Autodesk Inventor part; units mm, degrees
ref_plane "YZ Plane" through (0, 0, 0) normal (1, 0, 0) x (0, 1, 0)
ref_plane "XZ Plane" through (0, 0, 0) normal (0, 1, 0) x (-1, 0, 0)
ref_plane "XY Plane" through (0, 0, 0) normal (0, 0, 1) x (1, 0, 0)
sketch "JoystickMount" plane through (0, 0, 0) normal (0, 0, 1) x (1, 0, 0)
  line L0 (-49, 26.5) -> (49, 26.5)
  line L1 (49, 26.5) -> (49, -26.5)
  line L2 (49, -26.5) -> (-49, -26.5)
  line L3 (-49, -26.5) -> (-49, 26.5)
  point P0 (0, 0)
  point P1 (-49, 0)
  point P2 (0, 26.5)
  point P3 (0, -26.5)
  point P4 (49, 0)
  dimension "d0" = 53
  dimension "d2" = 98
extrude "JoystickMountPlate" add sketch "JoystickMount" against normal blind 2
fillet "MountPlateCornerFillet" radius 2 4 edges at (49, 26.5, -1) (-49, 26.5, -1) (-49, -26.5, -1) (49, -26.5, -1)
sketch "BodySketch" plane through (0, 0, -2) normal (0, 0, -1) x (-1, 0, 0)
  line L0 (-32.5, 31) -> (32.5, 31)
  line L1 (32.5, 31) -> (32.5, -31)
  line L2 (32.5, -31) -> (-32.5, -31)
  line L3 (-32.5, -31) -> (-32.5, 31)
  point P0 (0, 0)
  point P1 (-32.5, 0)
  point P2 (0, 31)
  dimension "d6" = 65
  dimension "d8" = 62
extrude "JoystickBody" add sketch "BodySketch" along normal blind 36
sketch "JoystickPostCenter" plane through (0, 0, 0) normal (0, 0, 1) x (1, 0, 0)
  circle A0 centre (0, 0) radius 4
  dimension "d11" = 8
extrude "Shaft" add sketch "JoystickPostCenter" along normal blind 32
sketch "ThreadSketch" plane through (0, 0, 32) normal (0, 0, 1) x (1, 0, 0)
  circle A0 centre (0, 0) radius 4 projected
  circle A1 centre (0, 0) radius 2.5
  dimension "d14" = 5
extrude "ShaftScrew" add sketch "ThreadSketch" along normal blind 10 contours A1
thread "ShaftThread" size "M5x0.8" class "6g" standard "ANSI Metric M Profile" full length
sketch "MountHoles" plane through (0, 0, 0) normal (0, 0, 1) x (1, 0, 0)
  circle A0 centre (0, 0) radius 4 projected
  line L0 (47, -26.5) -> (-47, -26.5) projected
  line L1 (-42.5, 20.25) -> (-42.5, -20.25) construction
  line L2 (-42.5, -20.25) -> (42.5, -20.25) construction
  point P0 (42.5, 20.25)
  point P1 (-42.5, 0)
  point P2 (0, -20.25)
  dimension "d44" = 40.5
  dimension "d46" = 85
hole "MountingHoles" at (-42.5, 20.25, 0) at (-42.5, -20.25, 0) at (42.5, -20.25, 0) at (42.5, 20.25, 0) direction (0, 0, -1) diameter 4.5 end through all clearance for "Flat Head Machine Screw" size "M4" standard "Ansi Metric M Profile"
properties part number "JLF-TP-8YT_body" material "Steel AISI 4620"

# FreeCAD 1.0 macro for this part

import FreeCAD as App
import Part
import Sketcher

V = App.Vector


def edges_at(feature, points):
    """Names of the edges that pass closest to the given points."""
    edges = feature.Shape.Edges
    near = lambda p: min(range(len(edges)), key=lambda i: edges[i].distToShape(Part.Vertex(*p))[0])
    return sorted({f"Edge{near(p) + 1}" for p in points})

doc = App.newDocument("Part")
body = doc.addObject("PartDesign::Body", "Body")

# Sketch on XY plane
sketch1 = body.newObject("Sketcher::SketchObject", "Sketch")
sketch1.AttachmentSupport = (doc.getObject("XY_Plane"), [""])
sketch1.MapMode = "FlatFace"
sketch1.addGeometry(Part.LineSegment(V(49, 26, 0), V(-49, 26, 0)), False)
sketch1.addGeometry(Part.LineSegment(V(-49, 26, 0), V(-49, -26, 0)), False)
sketch1.addGeometry(Part.LineSegment(V(-49, -26, 0), V(49, -26, 0)), False)
sketch1.addGeometry(Part.LineSegment(V(49, -26, 0), V(49, 26, 0)), False)
sketch1.addConstraint(Sketcher.Constraint("Coincident", 0, 2, 1, 1))
sketch1.addConstraint(Sketcher.Constraint("Coincident", 1, 2, 2, 1))
sketch1.addConstraint(Sketcher.Constraint("Coincident", 2, 2, 3, 1))
sketch1.addConstraint(Sketcher.Constraint("Coincident", 3, 2, 0, 1))
sketch1.addConstraint(Sketcher.Constraint("Horizontal", 0))
sketch1.addConstraint(Sketcher.Constraint("Vertical", 1))
sketch1.addConstraint(Sketcher.Constraint("Horizontal", 2))
sketch1.addConstraint(Sketcher.Constraint("Vertical", 3))
sketch1.addConstraint(Sketcher.Constraint("Symmetric", 0, 2, 2, 2, -1, 1))
sketch1.addConstraint(Sketcher.Constraint("DistanceX", 0, 2, 0, 1, 98.0))
sketch1.addConstraint(Sketcher.Constraint("DistanceY", 1, 2, 1, 1, 53.0))
pad1 = body.newObject("PartDesign::Pad", "Pad")
pad1.Profile = sketch1
pad1.Length = 2
pad1.Reversed = True
doc.recompute()

fillet = body.newObject("PartDesign::Fillet", "Fillet")
fillet.Base = (pad1, edges_at(pad1, [
    (49, 26.5, -1),
    (-49, 26.5, -1),
    (-49, -26.5, -1),
    (49, -26.5, -1),
]))
fillet.Radius = 2

# Sketch on XY plane
sketch2 = body.newObject("Sketcher::SketchObject", "Sketch001")
sketch2.AttachmentSupport = (doc.getObject("XY_Plane"), [""])
sketch2.MapMode = "FlatFace"
sketch2.AttachmentOffset = App.Placement(V(0, 0, -2), App.Rotation())
sketch2.addGeometry(Part.LineSegment(V(-32, 31, 0), V(32, 31, 0)), False)
sketch2.addGeometry(Part.LineSegment(V(32, 31, 0), V(32, -31, 0)), False)
sketch2.addGeometry(Part.LineSegment(V(32, -31, 0), V(-32, -31, 0)), False)
sketch2.addGeometry(Part.LineSegment(V(-32, -31, 0), V(-32, 31, 0)), False)
sketch2.addConstraint(Sketcher.Constraint("Coincident", 0, 2, 1, 1))
sketch2.addConstraint(Sketcher.Constraint("Coincident", 1, 2, 2, 1))
sketch2.addConstraint(Sketcher.Constraint("Coincident", 2, 2, 3, 1))
sketch2.addConstraint(Sketcher.Constraint("Coincident", 3, 2, 0, 1))
sketch2.addConstraint(Sketcher.Constraint("Horizontal", 0))
sketch2.addConstraint(Sketcher.Constraint("Vertical", 1))
sketch2.addConstraint(Sketcher.Constraint("Horizontal", 2))
sketch2.addConstraint(Sketcher.Constraint("Vertical", 3))
sketch2.addConstraint(Sketcher.Constraint("Symmetric", 0, 2, 2, 2, -1, 1))
sketch2.addConstraint(Sketcher.Constraint("DistanceX", 0, 1, 0, 2, 65.0))
sketch2.addConstraint(Sketcher.Constraint("DistanceY", 1, 2, 1, 1, 62.0))
pad2 = body.newObject("PartDesign::Pad", "Pad001")
pad2.Profile = sketch2
pad2.Length = 36
pad2.Reversed = True

# Sketch on XY plane
sketch3 = body.newObject("Sketcher::SketchObject", "Sketch002")
sketch3.AttachmentSupport = (doc.getObject("XY_Plane"), [""])
sketch3.MapMode = "FlatFace"
sketch3.addGeometry(Part.Circle(V(0, 0, 0), V(0, 0, 1), 4), False)
sketch3.addConstraint(Sketcher.Constraint("Coincident", 0, 3, -1, 1))
sketch3.addConstraint(Sketcher.Constraint("Diameter", 0, 8.0))
pad3 = body.newObject("PartDesign::Pad", "Pad002")
pad3.Profile = sketch3
pad3.Length = 32

# Sketch on XY plane
sketch4 = body.newObject("Sketcher::SketchObject", "Sketch003")
sketch4.AttachmentSupport = (doc.getObject("XY_Plane"), [""])
sketch4.MapMode = "FlatFace"
sketch4.AttachmentOffset = App.Placement(V(0, 0, 32), App.Rotation())
sketch4.addGeometry(Part.Circle(V(0, 0, 0), V(0, 0, 1), 2.5), False)
sketch4.addConstraint(Sketcher.Constraint("Coincident", 0, 3, -1, 1))
sketch4.addConstraint(Sketcher.Constraint("Diameter", 0, 5.0))
pad4 = body.newObject("PartDesign::Pad", "Pad003")
pad4.Profile = sketch4
pad4.Length = 10

# Sketch on XY plane
sketch5 = body.newObject("Sketcher::SketchObject", "Sketch004")
sketch5.AttachmentSupport = (doc.getObject("XY_Plane"), [""])
sketch5.MapMode = "FlatFace"
sketch5.addGeometry(Part.Circle(V(-42.5, 20.2, 0), V(0, 0, 1), 2.2), False)
sketch5.addGeometry(Part.Circle(V(-42.5, -20.2, 0), V(0, 0, 1), 2.2), False)
sketch5.addGeometry(Part.Circle(V(42.5, -20.2, 0), V(0, 0, 1), 2.2), False)
sketch5.addGeometry(Part.Circle(V(42.5, 20.2, 0), V(0, 0, 1), 2.2), False)
sketch5.addConstraint(Sketcher.Constraint("Equal", 0, 1))
sketch5.addConstraint(Sketcher.Constraint("Equal", 1, 2))
sketch5.addConstraint(Sketcher.Constraint("Equal", 2, 3))
sketch5.addConstraint(Sketcher.Constraint("Symmetric", 0, 3, 2, 3, -1, 1))
sketch5.addConstraint(Sketcher.Constraint("Symmetric", 1, 3, 3, 3, -1, 1))
sketch5.addConstraint(Sketcher.Constraint("Symmetric", 1, 3, 2, 3, -2))
sketch5.addConstraint(Sketcher.Constraint("Diameter", 0, 4.5))
sketch5.addConstraint(Sketcher.Constraint("DistanceX", 1, 3, 2, 3, 85.0))
sketch5.addConstraint(Sketcher.Constraint("DistanceY", 1, 3, 0, 3, 40.5))
doc.recompute()
hole = body.newObject("PartDesign::Hole", "Hole")
hole.Profile = sketch5
hole.ThreadType = "None"
hole.Diameter = 4.5
hole.DepthType = "ThroughAll"

doc.recompute()
